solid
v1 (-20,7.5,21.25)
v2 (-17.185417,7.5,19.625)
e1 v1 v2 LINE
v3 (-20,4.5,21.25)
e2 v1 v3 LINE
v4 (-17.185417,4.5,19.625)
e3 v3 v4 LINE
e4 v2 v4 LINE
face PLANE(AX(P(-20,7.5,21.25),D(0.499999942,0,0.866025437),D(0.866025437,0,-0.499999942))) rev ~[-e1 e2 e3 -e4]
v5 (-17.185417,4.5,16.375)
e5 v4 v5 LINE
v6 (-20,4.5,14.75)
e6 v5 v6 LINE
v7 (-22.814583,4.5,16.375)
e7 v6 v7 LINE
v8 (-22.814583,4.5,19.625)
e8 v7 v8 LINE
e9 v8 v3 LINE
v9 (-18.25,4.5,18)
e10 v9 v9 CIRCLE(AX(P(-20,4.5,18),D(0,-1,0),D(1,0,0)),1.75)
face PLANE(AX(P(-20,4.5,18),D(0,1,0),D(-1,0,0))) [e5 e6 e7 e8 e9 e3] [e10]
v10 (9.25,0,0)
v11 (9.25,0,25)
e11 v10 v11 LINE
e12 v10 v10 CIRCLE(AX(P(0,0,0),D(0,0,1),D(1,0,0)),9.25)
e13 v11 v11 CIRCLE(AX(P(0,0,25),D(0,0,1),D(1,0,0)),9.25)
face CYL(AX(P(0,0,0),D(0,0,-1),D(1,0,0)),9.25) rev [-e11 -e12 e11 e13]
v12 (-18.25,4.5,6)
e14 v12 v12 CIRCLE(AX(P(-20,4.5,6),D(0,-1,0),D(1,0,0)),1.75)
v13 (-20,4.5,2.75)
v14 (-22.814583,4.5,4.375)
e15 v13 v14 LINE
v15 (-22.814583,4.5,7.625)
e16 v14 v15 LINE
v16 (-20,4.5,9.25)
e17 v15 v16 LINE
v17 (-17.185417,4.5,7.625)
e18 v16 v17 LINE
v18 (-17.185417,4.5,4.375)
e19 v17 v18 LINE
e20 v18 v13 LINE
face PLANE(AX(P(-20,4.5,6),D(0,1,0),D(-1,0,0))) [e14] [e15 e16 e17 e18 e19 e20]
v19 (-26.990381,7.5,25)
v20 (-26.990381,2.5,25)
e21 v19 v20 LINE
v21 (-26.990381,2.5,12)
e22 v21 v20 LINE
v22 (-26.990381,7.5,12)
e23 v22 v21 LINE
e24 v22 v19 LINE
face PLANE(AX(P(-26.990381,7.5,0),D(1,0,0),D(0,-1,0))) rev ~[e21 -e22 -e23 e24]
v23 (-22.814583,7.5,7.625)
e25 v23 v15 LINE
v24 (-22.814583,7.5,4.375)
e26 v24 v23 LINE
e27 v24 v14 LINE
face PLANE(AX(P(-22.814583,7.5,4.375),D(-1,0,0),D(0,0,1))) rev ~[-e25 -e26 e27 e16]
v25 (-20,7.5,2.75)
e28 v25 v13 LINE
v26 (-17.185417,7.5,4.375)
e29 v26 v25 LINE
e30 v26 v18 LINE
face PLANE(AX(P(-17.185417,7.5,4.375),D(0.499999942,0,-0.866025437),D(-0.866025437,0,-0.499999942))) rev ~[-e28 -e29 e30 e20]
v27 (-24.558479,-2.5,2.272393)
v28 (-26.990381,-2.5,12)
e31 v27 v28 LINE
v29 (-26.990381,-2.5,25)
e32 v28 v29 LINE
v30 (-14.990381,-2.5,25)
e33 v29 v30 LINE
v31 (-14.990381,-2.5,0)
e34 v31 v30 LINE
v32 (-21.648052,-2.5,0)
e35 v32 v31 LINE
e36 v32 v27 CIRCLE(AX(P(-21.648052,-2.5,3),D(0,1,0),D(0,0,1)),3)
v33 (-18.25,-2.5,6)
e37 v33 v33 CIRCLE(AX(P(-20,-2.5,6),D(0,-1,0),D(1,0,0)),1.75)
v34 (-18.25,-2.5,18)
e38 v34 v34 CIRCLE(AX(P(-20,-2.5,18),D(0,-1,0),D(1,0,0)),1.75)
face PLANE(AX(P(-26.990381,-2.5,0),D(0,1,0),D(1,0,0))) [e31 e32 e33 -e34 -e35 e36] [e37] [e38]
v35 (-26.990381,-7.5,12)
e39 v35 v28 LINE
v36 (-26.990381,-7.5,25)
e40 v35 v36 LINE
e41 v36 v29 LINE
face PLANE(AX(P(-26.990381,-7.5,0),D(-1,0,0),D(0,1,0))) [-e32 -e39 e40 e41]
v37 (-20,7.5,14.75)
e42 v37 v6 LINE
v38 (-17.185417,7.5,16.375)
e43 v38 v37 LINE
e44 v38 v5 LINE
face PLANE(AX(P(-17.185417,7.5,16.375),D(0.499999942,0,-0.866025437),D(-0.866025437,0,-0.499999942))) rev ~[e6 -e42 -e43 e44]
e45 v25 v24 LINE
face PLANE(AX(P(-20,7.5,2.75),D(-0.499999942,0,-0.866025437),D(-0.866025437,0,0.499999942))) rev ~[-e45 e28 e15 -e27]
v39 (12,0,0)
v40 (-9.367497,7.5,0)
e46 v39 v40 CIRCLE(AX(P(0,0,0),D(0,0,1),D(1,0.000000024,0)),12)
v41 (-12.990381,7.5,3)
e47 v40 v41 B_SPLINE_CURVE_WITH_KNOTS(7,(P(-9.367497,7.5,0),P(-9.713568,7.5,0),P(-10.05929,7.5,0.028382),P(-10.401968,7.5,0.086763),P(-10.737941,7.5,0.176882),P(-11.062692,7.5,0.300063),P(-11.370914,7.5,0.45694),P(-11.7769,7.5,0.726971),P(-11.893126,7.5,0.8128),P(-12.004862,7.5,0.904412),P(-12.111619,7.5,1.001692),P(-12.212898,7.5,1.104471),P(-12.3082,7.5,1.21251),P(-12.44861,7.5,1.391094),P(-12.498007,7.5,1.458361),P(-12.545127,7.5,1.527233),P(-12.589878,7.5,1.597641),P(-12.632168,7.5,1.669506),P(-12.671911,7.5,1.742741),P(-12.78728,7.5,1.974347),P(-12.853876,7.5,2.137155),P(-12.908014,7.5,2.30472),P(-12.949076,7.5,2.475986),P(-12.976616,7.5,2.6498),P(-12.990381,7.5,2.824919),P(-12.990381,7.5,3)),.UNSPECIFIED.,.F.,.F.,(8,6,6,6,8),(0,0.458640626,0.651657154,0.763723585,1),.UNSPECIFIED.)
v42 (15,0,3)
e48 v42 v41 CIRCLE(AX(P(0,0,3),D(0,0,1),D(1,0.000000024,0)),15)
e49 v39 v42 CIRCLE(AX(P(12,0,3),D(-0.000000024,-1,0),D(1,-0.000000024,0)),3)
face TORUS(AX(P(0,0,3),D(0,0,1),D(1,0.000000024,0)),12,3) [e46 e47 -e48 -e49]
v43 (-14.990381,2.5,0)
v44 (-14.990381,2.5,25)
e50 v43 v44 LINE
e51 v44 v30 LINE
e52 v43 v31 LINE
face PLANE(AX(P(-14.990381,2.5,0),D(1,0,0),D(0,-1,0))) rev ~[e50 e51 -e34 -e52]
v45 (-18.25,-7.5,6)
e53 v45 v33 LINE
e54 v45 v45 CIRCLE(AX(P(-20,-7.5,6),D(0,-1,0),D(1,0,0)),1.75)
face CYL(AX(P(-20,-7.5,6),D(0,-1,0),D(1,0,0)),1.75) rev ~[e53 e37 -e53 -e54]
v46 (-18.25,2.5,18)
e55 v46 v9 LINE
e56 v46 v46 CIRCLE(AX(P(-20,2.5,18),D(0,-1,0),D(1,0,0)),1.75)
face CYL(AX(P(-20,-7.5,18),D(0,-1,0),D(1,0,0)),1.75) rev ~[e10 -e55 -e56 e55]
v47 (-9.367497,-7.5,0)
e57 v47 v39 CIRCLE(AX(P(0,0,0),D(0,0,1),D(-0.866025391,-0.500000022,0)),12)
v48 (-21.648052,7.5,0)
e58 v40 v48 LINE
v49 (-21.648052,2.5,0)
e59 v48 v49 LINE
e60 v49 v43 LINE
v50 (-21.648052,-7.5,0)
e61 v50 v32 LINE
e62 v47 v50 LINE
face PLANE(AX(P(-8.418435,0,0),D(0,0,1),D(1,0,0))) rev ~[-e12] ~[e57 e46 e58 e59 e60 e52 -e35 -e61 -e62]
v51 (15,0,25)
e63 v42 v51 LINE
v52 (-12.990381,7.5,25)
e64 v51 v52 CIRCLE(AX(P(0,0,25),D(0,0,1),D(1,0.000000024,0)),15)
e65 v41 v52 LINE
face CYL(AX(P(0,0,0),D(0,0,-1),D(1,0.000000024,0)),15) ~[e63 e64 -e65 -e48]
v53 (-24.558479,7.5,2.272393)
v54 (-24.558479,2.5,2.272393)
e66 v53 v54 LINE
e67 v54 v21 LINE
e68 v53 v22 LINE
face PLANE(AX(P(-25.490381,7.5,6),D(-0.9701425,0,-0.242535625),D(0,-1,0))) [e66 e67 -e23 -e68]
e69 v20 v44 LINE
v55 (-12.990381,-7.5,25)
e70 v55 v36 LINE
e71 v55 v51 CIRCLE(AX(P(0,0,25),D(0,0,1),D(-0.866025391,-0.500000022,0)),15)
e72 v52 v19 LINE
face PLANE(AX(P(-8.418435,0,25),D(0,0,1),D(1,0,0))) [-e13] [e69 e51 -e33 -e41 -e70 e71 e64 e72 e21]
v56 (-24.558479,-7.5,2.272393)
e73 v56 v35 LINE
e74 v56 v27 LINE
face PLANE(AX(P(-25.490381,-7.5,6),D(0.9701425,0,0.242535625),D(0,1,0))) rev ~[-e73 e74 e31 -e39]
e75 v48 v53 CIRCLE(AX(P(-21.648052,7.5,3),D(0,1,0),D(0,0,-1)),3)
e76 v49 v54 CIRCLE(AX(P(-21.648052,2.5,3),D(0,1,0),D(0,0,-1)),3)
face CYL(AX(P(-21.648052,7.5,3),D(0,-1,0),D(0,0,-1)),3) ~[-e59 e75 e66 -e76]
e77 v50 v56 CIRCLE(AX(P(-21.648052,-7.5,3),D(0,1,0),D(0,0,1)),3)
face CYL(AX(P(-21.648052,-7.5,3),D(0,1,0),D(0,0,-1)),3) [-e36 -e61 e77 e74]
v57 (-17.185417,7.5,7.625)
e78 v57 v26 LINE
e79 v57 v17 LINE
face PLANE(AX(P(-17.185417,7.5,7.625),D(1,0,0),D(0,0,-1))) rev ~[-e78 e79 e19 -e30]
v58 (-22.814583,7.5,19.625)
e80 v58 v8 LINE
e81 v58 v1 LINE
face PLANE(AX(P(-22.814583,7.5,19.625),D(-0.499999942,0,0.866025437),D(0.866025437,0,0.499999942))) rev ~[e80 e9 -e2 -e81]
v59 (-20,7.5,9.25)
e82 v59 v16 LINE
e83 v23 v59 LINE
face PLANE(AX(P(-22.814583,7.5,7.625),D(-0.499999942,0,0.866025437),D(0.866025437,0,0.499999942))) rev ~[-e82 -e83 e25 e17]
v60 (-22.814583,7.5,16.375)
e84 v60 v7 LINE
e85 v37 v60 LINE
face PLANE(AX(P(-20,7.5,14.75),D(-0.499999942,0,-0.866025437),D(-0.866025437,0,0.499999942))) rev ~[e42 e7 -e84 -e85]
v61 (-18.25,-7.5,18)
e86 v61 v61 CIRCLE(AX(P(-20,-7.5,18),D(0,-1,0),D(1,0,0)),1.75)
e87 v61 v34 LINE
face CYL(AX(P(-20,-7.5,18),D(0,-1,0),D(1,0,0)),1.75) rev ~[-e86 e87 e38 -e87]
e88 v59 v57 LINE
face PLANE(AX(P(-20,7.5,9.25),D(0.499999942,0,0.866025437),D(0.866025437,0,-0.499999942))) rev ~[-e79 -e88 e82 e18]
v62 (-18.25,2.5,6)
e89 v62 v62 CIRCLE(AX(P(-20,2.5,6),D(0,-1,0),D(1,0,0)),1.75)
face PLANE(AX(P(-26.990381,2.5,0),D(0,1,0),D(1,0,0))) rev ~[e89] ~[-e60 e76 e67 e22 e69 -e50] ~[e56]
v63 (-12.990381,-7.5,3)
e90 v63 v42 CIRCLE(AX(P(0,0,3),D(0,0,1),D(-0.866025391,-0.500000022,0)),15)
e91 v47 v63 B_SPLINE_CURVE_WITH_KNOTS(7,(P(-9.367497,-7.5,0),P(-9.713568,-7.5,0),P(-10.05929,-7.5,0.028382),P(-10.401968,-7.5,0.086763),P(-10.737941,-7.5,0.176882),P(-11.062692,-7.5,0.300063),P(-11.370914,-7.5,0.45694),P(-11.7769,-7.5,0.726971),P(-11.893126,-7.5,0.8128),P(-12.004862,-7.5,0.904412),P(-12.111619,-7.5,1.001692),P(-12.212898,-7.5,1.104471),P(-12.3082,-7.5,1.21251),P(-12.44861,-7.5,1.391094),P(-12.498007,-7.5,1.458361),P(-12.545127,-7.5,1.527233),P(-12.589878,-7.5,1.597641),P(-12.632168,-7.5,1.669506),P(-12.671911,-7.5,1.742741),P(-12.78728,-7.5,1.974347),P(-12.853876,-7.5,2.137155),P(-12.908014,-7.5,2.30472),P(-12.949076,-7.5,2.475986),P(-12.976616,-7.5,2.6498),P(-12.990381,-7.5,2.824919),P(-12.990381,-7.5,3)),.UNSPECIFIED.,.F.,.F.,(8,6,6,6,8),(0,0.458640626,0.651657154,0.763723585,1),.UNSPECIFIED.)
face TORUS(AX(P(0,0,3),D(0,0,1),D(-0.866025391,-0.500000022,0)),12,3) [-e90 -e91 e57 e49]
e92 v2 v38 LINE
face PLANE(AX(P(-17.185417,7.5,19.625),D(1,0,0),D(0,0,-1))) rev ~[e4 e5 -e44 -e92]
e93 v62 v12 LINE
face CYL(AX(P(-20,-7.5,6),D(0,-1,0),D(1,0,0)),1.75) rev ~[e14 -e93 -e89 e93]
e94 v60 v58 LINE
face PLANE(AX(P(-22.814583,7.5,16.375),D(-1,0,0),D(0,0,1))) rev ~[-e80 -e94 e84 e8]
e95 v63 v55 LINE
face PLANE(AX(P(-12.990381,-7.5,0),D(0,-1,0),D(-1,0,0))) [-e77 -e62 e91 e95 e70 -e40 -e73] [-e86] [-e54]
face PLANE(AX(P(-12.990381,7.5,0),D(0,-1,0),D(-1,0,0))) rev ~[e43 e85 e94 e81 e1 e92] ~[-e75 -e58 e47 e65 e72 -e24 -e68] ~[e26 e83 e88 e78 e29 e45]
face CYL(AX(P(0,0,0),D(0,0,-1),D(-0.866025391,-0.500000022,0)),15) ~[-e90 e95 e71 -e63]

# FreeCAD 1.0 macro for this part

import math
import FreeCAD as App
import Part
import Sketcher
from FreeCAD import Vector
Q = App.Units.Quantity


def edges_at(feature, points):
    """Names of the edges that pass closest to the given points."""
    edges = feature.Shape.Edges
    near = lambda p: min(range(len(edges)), key=lambda i: edges[i].distToShape(Part.Vertex(*p))[0])
    return sorted({f"Edge{near(p) + 1}" for p in points})


def add_polygon(sketch, points):
    """Adds a closed chain of lines whose ends are joined by coincident constraints."""
    first, n = sketch.GeometryCount, len(points)
    for a, b in zip(points, points[1:] + points[:1]):
        sketch.addGeometry(Part.LineSegment(App.Vector(*a, 0), App.Vector(*b, 0)), False)
    for i in range(n):
        sketch.addConstraint(Sketcher.Constraint("Coincident", first + i, 2, first + (i + 1) % n, 1))

doc = App.newDocument("Part")
body = doc.addObject("PartDesign::Body", "Body")

sketch1 = body.newObject("Sketcher::SketchObject", "Sketch")
sketch1.AttachmentSupport = (doc.getObject("XY_Plane"), [""])
sketch1.MapMode = "FlatFace"
sketch1.addGeometry(Part.ArcOfCircle(Part.Circle(Vector(0, 0, 0), Vector(0, 0, 1), 15), math.radians(0), math.radians(150)), False)
sketch1.addGeometry(Part.LineSegment(Vector(-13, 8, 0), Vector(-27, 8, 0)), False)
sketch1.addGeometry(Part.LineSegment(Vector(-27, 8, 0), Vector(-27, 2, 0)), False)
sketch1.addGeometry(Part.LineSegment(Vector(-27, 2, 0), Vector(-15, 2, 0)), False)
sketch1.addGeometry(Part.LineSegment(Vector(-15, 2, 0), Vector(-15, -2, 0)), False)
sketch1.addGeometry(Part.LineSegment(Vector(-15, -2, 0), Vector(-27, -2, 0)), False)
sketch1.addGeometry(Part.LineSegment(Vector(-27, -2, 0), Vector(-27, -8, 0)), False)
sketch1.addGeometry(Part.LineSegment(Vector(-27, -8, 0), Vector(-13, -8, 0)), False)
sketch1.addGeometry(Part.ArcOfCircle(Part.Circle(Vector(0, 0, 0), Vector(0, 0, 1), 15), math.radians(-150), math.radians(0)), False)
sketch1.addGeometry(Part.Circle(Vector(0, 0, 0), Vector(0, 0, 1), 9), False)
sketch1.addConstraint(Sketcher.Constraint("Coincident", 0, 2, 1, 1))
sketch1.addConstraint(Sketcher.Constraint("Coincident", 1, 2, 2, 1))
sketch1.addConstraint(Sketcher.Constraint("Coincident", 2, 2, 3, 1))
sketch1.addConstraint(Sketcher.Constraint("Coincident", 3, 2, 4, 1))
sketch1.addConstraint(Sketcher.Constraint("Coincident", 4, 2, 5, 1))
sketch1.addConstraint(Sketcher.Constraint("Coincident", 5, 2, 6, 1))
sketch1.addConstraint(Sketcher.Constraint("Coincident", 6, 2, 7, 1))
sketch1.addConstraint(Sketcher.Constraint("Coincident", 7, 2, 8, 1))
sketch1.addConstraint(Sketcher.Constraint("Tangent", 8, 2, 0, 1))
sketch1.addConstraint(Sketcher.Constraint("Horizontal", 1))
sketch1.addConstraint(Sketcher.Constraint("Vertical", 2))
sketch1.addConstraint(Sketcher.Constraint("Horizontal", 3))
sketch1.addConstraint(Sketcher.Constraint("Vertical", 4))
sketch1.addConstraint(Sketcher.Constraint("Horizontal", 5))
sketch1.addConstraint(Sketcher.Constraint("Vertical", 6))
sketch1.addConstraint(Sketcher.Constraint("Horizontal", 7))
sketch1.addConstraint(Sketcher.Constraint("Coincident", 0, 3, -1, 1))
sketch1.addConstraint(Sketcher.Constraint("Coincident", 9, 3, -1, 1))
sketch1.addConstraint(Sketcher.Constraint("Equal", 0, 8))
sketch1.addConstraint(Sketcher.Constraint("Symmetric", 2, 2, 5, 2, -1))
sketch1.addConstraint(Sketcher.Constraint("PointOnObject", 8, 2, -1))
sketch1.addConstraint(Sketcher.Constraint("Vertical", 0, 2, 7, 2))
sketch1.addConstraint(Sketcher.Constraint("Equal", 2, 4))
sketch1.addConstraint(Sketcher.Constraint("Radius", 0, 15.0))
sketch1.addConstraint(Sketcher.Constraint("Diameter", 9, 18.5))
sketch1.addConstraint(Sketcher.Constraint("DistanceX", 1, 2, 1, 1, 14.0))
sketch1.addConstraint(Sketcher.Constraint("DistanceX", 3, 1, 3, 2, 12.0))
sketch1.addConstraint(Sketcher.Constraint("DistanceY", 2, 2, 2, 1, 5.0))
pad1 = body.newObject("PartDesign::Pad", "Pad")
pad1.Profile = sketch1
pad1.Length = 25

sketch2 = body.newObject("Sketcher::SketchObject", "Sketch001")
sketch2.AttachmentSupport = (doc.getObject("XZ_Plane"), [""])
sketch2.MapMode = "FlatFace"
sketch2.AttachmentOffset = App.Placement(Vector(0, 0, 7.5), App.Rotation())
sketch2.addGeometry(Part.Circle(Vector(-20, 6, 0), Vector(0, 0, 1), 1.8), False)
sketch2.addGeometry(Part.Circle(Vector(-20, 18, 0), Vector(0, 0, 1), 1.8), False)
sketch2.addConstraint(Sketcher.Constraint("Equal", 0, 1))
sketch2.addConstraint(Sketcher.Constraint("Vertical", 0, 3, 1, 3))
sketch2.addConstraint(Sketcher.Constraint("Diameter", 0, 3.5))
sketch2.addConstraint(Sketcher.Constraint("DistanceX", 0, 3, -1, 1, 20.0))
sketch2.addConstraint(Sketcher.Constraint("DistanceY", -1, 1, 0, 3, 6.0))
sketch2.addConstraint(Sketcher.Constraint("DistanceY", -1, 1, 1, 3, 18.0))
pocket1 = body.newObject("PartDesign::Pocket", "Pocket")
pocket1.Profile = sketch2
pocket1.Type = "ThroughAll"

sketch3 = body.newObject("Sketcher::SketchObject", "Sketch002")
sketch3.AttachmentSupport = (doc.getObject("XZ_Plane"), [""])
sketch3.MapMode = "FlatFace"
sketch3.AttachmentOffset = App.Placement(Vector(0, 0, -7.5), App.Rotation())
add_polygon(sketch3, [(-20, 2.8), (-22.8, 4.4), (-22.8, 7.6), (-20, 9.2), (-17.2, 7.6), (-17.2, 4.4)])
add_polygon(sketch3, [(-20, 14.8), (-22.8, 16.4), (-22.8, 19.6), (-20, 21.2), (-17.2, 19.6), (-17.2, 16.4)])
sketch3.addConstraint(Sketcher.Constraint("Vertical", 1))
sketch3.addConstraint(Sketcher.Constraint("Vertical", 4))
sketch3.addConstraint(Sketcher.Constraint("Vertical", 7))
sketch3.addConstraint(Sketcher.Constraint("Vertical", 10))
sketch3.addConstraint(Sketcher.Constraint("Parallel", 0, 3))
sketch3.addConstraint(Sketcher.Constraint("Parallel", 2, 5))
sketch3.addConstraint(Sketcher.Constraint("Parallel", 3, 6))
sketch3.addConstraint(Sketcher.Constraint("Parallel", 5, 8))
sketch3.addConstraint(Sketcher.Constraint("Parallel", 6, 9))
sketch3.addConstraint(Sketcher.Constraint("Parallel", 8, 11))
sketch3.addConstraint(Sketcher.Constraint("Horizontal", 1, 2, 3, 2))
sketch3.addConstraint(Sketcher.Constraint("Horizontal", 0, 2, 4, 2))
sketch3.addConstraint(Sketcher.Constraint("Horizontal", 7, 2, 9, 2))
sketch3.addConstraint(Sketcher.Constraint("Horizontal", 6, 2, 10, 2))
sketch3.addConstraint(Sketcher.Constraint("Vertical", 2, 2, 5, 2))
sketch3.addConstraint(Sketcher.Constraint("Vertical", 1, 2, 6, 2))
sketch3.addConstraint(Sketcher.Constraint("Vertical", 5, 2, 8, 2))
sketch3.addConstraint(Sketcher.Constraint("Equal", 4, 7))
sketch3.addConstraint(Sketcher.Constraint("Angle", 0, Q("150.000004 deg")))
sketch3.addConstraint(Sketcher.Constraint("DistanceX", 2, 2, -1, 1, 20.0))
sketch3.addConstraint(Sketcher.Constraint("DistanceY", 0, 2, 6, 2, 12.0))
sketch3.addConstraint(Sketcher.Constraint("DistanceY", 1, 1, 1, 2, 3.25))
sketch3.addConstraint(Sketcher.Constraint("DistanceY", 5, 2, 2, 2, 6.5))
sketch3.addConstraint(Sketcher.Constraint("DistanceY", -1, 1, 2, 2, 9.25))
pocket2 = body.newObject("PartDesign::Pocket", "Pocket001")
pocket2.Profile = sketch3
pocket2.Length = 3
pocket2.Reversed = True
doc.recompute()

chamfer = body.newObject("PartDesign::Chamfer", "Chamfer")
chamfer.Base = (pocket2, edges_at(pocket2, [(-26.99, 5, 0), (-26.99, -5, 0)]))
chamfer.ChamferType = "Two distances"
chamfer.Size = 3
chamfer.Size2 = 12
doc.recompute()

fillet = body.newObject("PartDesign::Fillet", "Fillet")
fillet.Base = (chamfer, edges_at(chamfer, [(-23.99, 5, 0), (-23.99, -5, 0)]))
fillet.Radius = 3
doc.recompute()

fillet2 = body.newObject("PartDesign::Fillet", "Fillet001")
fillet2.Base = (fillet, edges_at(fillet, [(3.882, -14.489, 0), (3.882, 14.489, 0)]))
fillet2.Radius = 3

doc.recompute()
